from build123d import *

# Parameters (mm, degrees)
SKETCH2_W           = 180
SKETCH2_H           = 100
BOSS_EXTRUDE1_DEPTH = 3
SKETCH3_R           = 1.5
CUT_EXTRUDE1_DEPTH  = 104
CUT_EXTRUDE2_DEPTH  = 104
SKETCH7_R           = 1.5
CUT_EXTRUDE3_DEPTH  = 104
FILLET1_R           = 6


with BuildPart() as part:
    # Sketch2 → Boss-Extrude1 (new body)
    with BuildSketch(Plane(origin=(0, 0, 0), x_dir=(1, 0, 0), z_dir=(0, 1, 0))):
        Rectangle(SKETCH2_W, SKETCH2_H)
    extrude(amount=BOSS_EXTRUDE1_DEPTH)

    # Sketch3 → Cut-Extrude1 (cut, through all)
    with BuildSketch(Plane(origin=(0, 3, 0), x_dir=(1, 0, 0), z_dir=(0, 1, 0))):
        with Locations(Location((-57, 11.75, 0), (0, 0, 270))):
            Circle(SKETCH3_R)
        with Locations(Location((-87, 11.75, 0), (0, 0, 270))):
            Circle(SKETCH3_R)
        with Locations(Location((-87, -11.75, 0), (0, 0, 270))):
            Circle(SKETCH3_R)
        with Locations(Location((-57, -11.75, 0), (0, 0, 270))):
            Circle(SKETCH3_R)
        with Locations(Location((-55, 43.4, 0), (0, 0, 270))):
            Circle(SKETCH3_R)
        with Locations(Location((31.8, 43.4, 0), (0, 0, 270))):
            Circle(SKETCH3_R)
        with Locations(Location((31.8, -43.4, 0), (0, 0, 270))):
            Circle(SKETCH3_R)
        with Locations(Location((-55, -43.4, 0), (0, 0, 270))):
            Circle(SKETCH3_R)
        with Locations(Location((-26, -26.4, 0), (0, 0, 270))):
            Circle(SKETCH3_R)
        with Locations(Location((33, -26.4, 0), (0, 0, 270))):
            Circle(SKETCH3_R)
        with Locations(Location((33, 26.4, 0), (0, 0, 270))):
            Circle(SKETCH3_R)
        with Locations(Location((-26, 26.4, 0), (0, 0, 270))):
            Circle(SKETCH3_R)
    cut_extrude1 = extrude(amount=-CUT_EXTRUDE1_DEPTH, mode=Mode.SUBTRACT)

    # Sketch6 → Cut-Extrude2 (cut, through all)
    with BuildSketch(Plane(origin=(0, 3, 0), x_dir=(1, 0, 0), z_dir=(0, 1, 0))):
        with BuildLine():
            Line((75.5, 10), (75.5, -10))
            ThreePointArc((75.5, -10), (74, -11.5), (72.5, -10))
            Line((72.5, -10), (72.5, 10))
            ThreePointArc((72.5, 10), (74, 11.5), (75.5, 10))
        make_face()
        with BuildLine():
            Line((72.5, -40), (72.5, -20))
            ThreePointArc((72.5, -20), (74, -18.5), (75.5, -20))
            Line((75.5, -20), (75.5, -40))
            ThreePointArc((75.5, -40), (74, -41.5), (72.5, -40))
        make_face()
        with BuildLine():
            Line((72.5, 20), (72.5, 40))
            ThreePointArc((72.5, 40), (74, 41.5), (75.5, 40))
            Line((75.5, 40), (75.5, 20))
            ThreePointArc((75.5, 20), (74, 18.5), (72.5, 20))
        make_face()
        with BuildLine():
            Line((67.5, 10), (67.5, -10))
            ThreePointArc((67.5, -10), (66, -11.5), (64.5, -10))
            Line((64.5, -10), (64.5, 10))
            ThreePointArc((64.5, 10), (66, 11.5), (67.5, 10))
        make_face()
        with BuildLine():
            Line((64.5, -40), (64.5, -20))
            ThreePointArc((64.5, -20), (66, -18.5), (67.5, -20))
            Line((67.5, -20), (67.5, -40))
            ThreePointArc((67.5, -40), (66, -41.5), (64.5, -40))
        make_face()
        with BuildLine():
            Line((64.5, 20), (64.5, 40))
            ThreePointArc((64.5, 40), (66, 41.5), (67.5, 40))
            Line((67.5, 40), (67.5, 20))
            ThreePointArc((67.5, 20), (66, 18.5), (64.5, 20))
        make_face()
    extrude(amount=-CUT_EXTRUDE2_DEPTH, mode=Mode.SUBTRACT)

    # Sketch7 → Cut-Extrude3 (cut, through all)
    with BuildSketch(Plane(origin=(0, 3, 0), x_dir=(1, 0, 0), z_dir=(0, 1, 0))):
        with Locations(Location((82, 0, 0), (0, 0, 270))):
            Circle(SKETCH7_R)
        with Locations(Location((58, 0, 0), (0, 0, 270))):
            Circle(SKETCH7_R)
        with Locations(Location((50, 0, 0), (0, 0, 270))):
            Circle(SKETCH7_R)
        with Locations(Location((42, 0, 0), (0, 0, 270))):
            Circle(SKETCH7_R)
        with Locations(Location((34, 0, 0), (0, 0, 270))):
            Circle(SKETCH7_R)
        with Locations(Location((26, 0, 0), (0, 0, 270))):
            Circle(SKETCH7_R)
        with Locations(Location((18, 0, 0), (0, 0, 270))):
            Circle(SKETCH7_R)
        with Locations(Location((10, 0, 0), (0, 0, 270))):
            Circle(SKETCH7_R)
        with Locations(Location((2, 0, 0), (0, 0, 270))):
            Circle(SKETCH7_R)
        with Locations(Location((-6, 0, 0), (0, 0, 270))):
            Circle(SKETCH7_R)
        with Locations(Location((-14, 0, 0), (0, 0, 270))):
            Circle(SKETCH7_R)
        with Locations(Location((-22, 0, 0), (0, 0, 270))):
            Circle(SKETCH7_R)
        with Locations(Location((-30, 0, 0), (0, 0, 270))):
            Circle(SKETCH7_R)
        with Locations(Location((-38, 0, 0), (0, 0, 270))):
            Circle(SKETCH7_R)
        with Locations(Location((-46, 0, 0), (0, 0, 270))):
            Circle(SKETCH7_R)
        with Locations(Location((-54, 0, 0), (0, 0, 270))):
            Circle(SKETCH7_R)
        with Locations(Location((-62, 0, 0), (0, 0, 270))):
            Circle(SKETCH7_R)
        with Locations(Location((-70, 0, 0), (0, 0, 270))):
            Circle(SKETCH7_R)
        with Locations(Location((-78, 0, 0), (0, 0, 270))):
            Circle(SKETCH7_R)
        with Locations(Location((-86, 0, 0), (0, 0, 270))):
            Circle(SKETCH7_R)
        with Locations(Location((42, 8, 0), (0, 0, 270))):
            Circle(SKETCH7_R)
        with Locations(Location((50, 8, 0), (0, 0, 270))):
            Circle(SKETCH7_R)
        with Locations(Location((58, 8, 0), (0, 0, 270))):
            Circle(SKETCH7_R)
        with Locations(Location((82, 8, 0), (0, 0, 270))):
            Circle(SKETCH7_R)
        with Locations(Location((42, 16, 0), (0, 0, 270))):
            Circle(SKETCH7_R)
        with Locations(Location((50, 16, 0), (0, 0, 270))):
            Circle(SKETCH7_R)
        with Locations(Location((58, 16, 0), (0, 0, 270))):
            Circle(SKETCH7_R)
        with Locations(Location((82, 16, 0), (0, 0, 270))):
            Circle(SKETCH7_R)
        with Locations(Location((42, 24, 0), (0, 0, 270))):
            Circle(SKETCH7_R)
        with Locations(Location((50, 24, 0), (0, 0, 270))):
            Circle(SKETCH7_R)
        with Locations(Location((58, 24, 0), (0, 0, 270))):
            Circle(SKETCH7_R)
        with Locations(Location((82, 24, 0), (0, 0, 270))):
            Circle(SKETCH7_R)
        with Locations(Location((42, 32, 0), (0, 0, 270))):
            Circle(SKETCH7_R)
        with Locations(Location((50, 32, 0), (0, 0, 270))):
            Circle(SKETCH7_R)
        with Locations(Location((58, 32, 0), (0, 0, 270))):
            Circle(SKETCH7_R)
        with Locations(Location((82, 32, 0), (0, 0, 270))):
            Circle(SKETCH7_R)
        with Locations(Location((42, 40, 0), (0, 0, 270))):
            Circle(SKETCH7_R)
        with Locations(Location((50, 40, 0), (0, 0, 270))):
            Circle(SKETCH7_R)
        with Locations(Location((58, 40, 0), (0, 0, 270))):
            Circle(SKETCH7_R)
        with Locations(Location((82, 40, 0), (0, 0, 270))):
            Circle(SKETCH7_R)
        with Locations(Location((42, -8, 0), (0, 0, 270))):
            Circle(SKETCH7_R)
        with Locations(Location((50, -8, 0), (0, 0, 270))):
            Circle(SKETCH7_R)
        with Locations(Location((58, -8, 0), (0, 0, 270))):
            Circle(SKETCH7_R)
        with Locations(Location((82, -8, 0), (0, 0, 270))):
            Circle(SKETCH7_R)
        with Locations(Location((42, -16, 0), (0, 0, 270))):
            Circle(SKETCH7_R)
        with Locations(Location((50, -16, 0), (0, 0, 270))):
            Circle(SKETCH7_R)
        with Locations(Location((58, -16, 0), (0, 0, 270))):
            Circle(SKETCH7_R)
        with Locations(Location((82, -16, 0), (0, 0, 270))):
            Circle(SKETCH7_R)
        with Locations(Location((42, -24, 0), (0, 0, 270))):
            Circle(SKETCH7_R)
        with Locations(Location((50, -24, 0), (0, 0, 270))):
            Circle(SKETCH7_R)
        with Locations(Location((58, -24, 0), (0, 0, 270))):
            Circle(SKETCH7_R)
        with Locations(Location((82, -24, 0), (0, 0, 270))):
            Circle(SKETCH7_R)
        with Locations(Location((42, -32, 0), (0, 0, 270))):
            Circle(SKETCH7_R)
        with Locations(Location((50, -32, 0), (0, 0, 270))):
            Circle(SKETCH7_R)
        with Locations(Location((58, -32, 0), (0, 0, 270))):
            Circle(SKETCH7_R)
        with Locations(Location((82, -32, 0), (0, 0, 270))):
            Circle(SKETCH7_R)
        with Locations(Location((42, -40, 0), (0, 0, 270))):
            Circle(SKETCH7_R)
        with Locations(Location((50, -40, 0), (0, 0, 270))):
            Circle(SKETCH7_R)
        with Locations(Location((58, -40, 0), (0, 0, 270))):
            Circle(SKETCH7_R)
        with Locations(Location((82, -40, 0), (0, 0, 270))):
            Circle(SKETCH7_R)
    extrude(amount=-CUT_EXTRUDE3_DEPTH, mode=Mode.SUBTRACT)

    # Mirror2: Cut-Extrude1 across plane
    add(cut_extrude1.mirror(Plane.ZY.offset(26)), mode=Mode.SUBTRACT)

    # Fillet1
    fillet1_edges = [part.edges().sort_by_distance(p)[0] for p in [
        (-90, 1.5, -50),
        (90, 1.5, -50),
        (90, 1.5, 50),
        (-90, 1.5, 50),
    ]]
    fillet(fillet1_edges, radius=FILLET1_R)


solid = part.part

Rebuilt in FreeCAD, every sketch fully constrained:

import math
import FreeCAD as App
import Part
import Sketcher
from FreeCAD import Vector
Q = App.Units.Quantity


def edges_at(feature, points):
    """Names of the edges that pass closest to the given points."""
    edges = feature.Shape.Edges
    near = lambda p: min(range(len(edges)), key=lambda i: edges[i].distToShape(Part.Vertex(*p))[0])
    return sorted({f"Edge{near(p) + 1}" for p in points})


def add_polygon(sketch, points):
    """Adds a closed chain of lines whose ends are joined by coincident constraints."""
    first, n = sketch.GeometryCount, len(points)
    for a, b in zip(points, points[1:] + points[:1]):
        sketch.addGeometry(Part.LineSegment(App.Vector(*a, 0), App.Vector(*b, 0)), False)
    for i in range(n):
        sketch.addConstraint(Sketcher.Constraint("Coincident", first + i, 2, first + (i + 1) % n, 1))

doc = App.newDocument("Part")
body = doc.addObject("PartDesign::Body", "Body")

# Sketch on XZ plane
sketch1 = doc.addObject("Sketcher::SketchObject", "Sketch")
body.addObject(sketch1)
sketch1.AttachmentSupport = (doc.XZ_Plane, [""])
sketch1.MapMode = "FlatFace"
add_polygon(sketch1, [(-90, -50), (-90, 50), (90, 50), (90, -50)])  # lines 0-3
sketch1.addConstraint([
    Sketcher.Constraint("Vertical", 0),
    Sketcher.Constraint("Horizontal", 1),
    Sketcher.Constraint("Vertical", 2),
    Sketcher.Constraint("Horizontal", 3),
    Sketcher.Constraint("Symmetric", 0, 2, 2, 2, -1, 1),
    Sketcher.Constraint("DistanceX", 1, 1, 1, 2, Q("180 mm")),
    Sketcher.Constraint("DistanceY", 0, 1, 0, 2, Q("100 mm")),
])
pad1 = doc.addObject("PartDesign::Pad", "Pad")
body.addObject(pad1)
pad1.Profile = sketch1
pad1.Length = 3
pad1.Reversed = True

# Sketch on XZ plane
sketch2 = doc.addObject("Sketcher::SketchObject", "Sketch001")
body.addObject(sketch2)
sketch2.AttachmentSupport = (doc.XZ_Plane, [""])
sketch2.MapMode = "FlatFace"
sketch2.AttachmentOffset = App.Placement(Vector(0, 0, -3), App.Rotation())
sketch2.addGeometry([
    Part.Circle(Vector(-57, -11.75, 0), Vector(0, 0, 1), 1.5),  # 0
    Part.Circle(Vector(-87, -11.75, 0), Vector(0, 0, 1), 1.5),  # 1
    Part.Circle(Vector(-87, 11.75, 0), Vector(0, 0, 1), 1.5),  # 2
    Part.Circle(Vector(-57, 11.75, 0), Vector(0, 0, 1), 1.5),  # 3
    Part.Circle(Vector(-55, -43.4, 0), Vector(0, 0, 1), 1.5),  # 4
    Part.Circle(Vector(31.8, -43.4, 0), Vector(0, 0, 1), 1.5),  # 5
    Part.Circle(Vector(31.8, 43.4, 0), Vector(0, 0, 1), 1.5),  # 6
    Part.Circle(Vector(-55, 43.4, 0), Vector(0, 0, 1), 1.5),  # 7
    Part.Circle(Vector(-26, 26.4, 0), Vector(0, 0, 1), 1.5),  # 8
    Part.Circle(Vector(33, 26.4, 0), Vector(0, 0, 1), 1.5),  # 9
    Part.Circle(Vector(33, -26.4, 0), Vector(0, 0, 1), 1.5),  # 10
    Part.Circle(Vector(-26, -26.4, 0), Vector(0, 0, 1), 1.5),  # 11
], False)
sketch2.addConstraint([
    Sketcher.Constraint("Equal", 0, 1),
    Sketcher.Constraint("Equal", 1, 2),
    Sketcher.Constraint("Equal", 2, 3),
    Sketcher.Constraint("Equal", 3, 4),
    Sketcher.Constraint("Equal", 4, 5),
    Sketcher.Constraint("Equal", 5, 6),
    Sketcher.Constraint("Equal", 6, 7),
    Sketcher.Constraint("Equal", 7, 8),
    Sketcher.Constraint("Equal", 8, 9),
    Sketcher.Constraint("Equal", 9, 10),
    Sketcher.Constraint("Equal", 10, 11),
    Sketcher.Constraint("Symmetric", 1, 3, 2, 3, -1),
    Sketcher.Constraint("Symmetric", 0, 3, 3, 3, -1),
    Sketcher.Constraint("Symmetric", 5, 3, 6, 3, -1),
    Sketcher.Constraint("Symmetric", 4, 3, 7, 3, -1),
    Sketcher.Constraint("Symmetric", 9, 3, 10, 3, -1),
    Sketcher.Constraint("Symmetric", 8, 3, 11, 3, -1),
    Sketcher.Constraint("Horizontal", 0, 3, 1, 3),
    Sketcher.Constraint("Horizontal", 4, 3, 5, 3),
    Sketcher.Constraint("Horizontal", 8, 3, 9, 3),
    Sketcher.Constraint("Diameter", 0, Q("3 mm")),
    Sketcher.Constraint("DistanceX", 0, 3, -1, 1, Q("57 mm")),
    Sketcher.Constraint("DistanceX", 1, 3, -1, 1, Q("87 mm")),
    Sketcher.Constraint("DistanceX", 4, 3, -1, 1, Q("55 mm")),
    Sketcher.Constraint("DistanceX", 8, 3, -1, 1, Q("26 mm")),
    Sketcher.Constraint("DistanceX", -1, 1, 9, 3, Q("33 mm")),
    Sketcher.Constraint("DistanceY", 8, 3, 7, 3, Q("17 mm")),
    Sketcher.Constraint("DistanceY", 4, 3, -1, 1, Q("43.4 mm")),
    Sketcher.Constraint("DistanceX", -1, 1, 5, 3, Q("31.8 mm")),
    Sketcher.Constraint("DistanceY", 1, 3, 2, 3, Q("23.5 mm")),
])
pocket1 = doc.addObject("PartDesign::Pocket", "Pocket")
body.addObject(pocket1)
pocket1.Profile = sketch2
pocket1.Type = "ThroughAll"
pocket1.Reversed = True

# Sketch on XZ plane
sketch3 = doc.addObject("Sketcher::SketchObject", "Sketch002")
body.addObject(sketch3)
sketch3.AttachmentSupport = (doc.XZ_Plane, [""])
sketch3.MapMode = "FlatFace"
sketch3.AttachmentOffset = App.Placement(Vector(0, 0, -3), App.Rotation())
sketch3.addGeometry([
    Part.LineSegment(Vector(75.5, 10, 0), Vector(75.5, -10, 0)),  # 0
    Part.ArcOfCircle(Part.Circle(Vector(74, -10, 0), Vector(0, 0, 1), 1.5), math.radians(180), math.radians(360)),  # 1
    Part.LineSegment(Vector(72.5, -10, 0), Vector(72.5, 10, 0)),  # 2
    Part.ArcOfCircle(Part.Circle(Vector(74, 10, 0), Vector(0, 0, 1), 1.5), math.radians(0), math.radians(180)),  # 3
    Part.LineSegment(Vector(72.5, 20, 0), Vector(72.5, 40, 0)),  # 4
    Part.ArcOfCircle(Part.Circle(Vector(74, 40, 0), Vector(0, 0, 1), 1.5), math.radians(0), math.radians(180)),  # 5
    Part.LineSegment(Vector(75.5, 40, 0), Vector(75.5, 20, 0)),  # 6
    Part.ArcOfCircle(Part.Circle(Vector(74, 20, 0), Vector(0, 0, 1), 1.5), math.radians(180), math.radians(360)),  # 7
    Part.LineSegment(Vector(72.5, -40, 0), Vector(72.5, -20, 0)),  # 8
    Part.ArcOfCircle(Part.Circle(Vector(74, -20, 0), Vector(0, 0, 1), 1.5), math.radians(0), math.radians(180)),  # 9
    Part.LineSegment(Vector(75.5, -20, 0), Vector(75.5, -40, 0)),  # 10
    Part.ArcOfCircle(Part.Circle(Vector(74, -40, 0), Vector(0, 0, 1), 1.5), math.radians(180), math.radians(360)),  # 11
    Part.LineSegment(Vector(67.5, 10, 0), Vector(67.5, -10, 0)),  # 12
    Part.ArcOfCircle(Part.Circle(Vector(66, -10, 0), Vector(0, 0, 1), 1.5), math.radians(180), math.radians(360)),  # 13
    Part.LineSegment(Vector(64.5, -10, 0), Vector(64.5, 10, 0)),  # 14
    Part.ArcOfCircle(Part.Circle(Vector(66, 10, 0), Vector(0, 0, 1), 1.5), math.radians(0), math.radians(180)),  # 15
    Part.LineSegment(Vector(64.5, 20, 0), Vector(64.5, 40, 0)),  # 16
    Part.ArcOfCircle(Part.Circle(Vector(66, 40, 0), Vector(0, 0, 1), 1.5), math.radians(0), math.radians(180)),  # 17
    Part.LineSegment(Vector(67.5, 40, 0), Vector(67.5, 20, 0)),  # 18
    Part.ArcOfCircle(Part.Circle(Vector(66, 20, 0), Vector(0, 0, 1), 1.5), math.radians(180), math.radians(360)),  # 19
    Part.LineSegment(Vector(64.5, -40, 0), Vector(64.5, -20, 0)),  # 20
    Part.ArcOfCircle(Part.Circle(Vector(66, -20, 0), Vector(0, 0, 1), 1.5), math.radians(0), math.radians(180)),  # 21
    Part.LineSegment(Vector(67.5, -20, 0), Vector(67.5, -40, 0)),  # 22
    Part.ArcOfCircle(Part.Circle(Vector(66, -40, 0), Vector(0, 0, 1), 1.5), math.radians(180), math.radians(360)),  # 23
], False)
sketch3.addConstraint([
    Sketcher.Constraint("Tangent", 0, 2, 1, 2),
    Sketcher.Constraint("Tangent", 1, 1, 2, 1),
    Sketcher.Constraint("Tangent", 2, 2, 3, 2),
    Sketcher.Constraint("Tangent", 3, 1, 0, 1),
    Sketcher.Constraint("Tangent", 4, 2, 5, 2),
    Sketcher.Constraint("Tangent", 5, 1, 6, 1),
    Sketcher.Constraint("Tangent", 6, 2, 7, 2),
    Sketcher.Constraint("Tangent", 7, 1, 4, 1),
    Sketcher.Constraint("Tangent", 8, 2, 9, 2),
    Sketcher.Constraint("Tangent", 9, 1, 10, 1),
    Sketcher.Constraint("Tangent", 10, 2, 11, 2),
    Sketcher.Constraint("Tangent", 11, 1, 8, 1),
    Sketcher.Constraint("Tangent", 12, 2, 13, 2),
    Sketcher.Constraint("Tangent", 13, 1, 14, 1),
    Sketcher.Constraint("Tangent", 14, 2, 15, 2),
    Sketcher.Constraint("Tangent", 15, 1, 12, 1),
    Sketcher.Constraint("Tangent", 16, 2, 17, 2),
    Sketcher.Constraint("Tangent", 17, 1, 18, 1),
    Sketcher.Constraint("Tangent", 18, 2, 19, 2),
    Sketcher.Constraint("Tangent", 19, 1, 16, 1),
    Sketcher.Constraint("Tangent", 20, 2, 21, 2),
    Sketcher.Constraint("Tangent", 21, 1, 22, 1),
    Sketcher.Constraint("Tangent", 22, 2, 23, 2),
    Sketcher.Constraint("Tangent", 23, 1, 20, 1),
    Sketcher.Constraint("Vertical", 0),
    Sketcher.Constraint("Vertical", 2),
    Sketcher.Constraint("Vertical", 4),
    Sketcher.Constraint("Vertical", 6),
    Sketcher.Constraint("Vertical", 8),
    Sketcher.Constraint("Vertical", 10),
    Sketcher.Constraint("Vertical", 12),
    Sketcher.Constraint("Vertical", 14),
    Sketcher.Constraint("Vertical", 16),
    Sketcher.Constraint("Vertical", 18),
    Sketcher.Constraint("Vertical", 20),
    Sketcher.Constraint("Vertical", 22),
    Sketcher.Constraint("Equal", 3, 5),
    Sketcher.Constraint("Equal", 7, 9),
    Sketcher.Constraint("Equal", 11, 13),
    Sketcher.Constraint("Equal", 15, 17),
    Sketcher.Constraint("Equal", 19, 21),
    Sketcher.Constraint("Symmetric", 7, 3, 9, 3, -1),
    Sketcher.Constraint("Symmetric", 19, 3, 21, 3, -1),
    Sketcher.Constraint("Horizontal", 1, 3, 13, 3),
    Sketcher.Constraint("Horizontal", 3, 3, 15, 3),
    Sketcher.Constraint("Horizontal", 5, 3, 17, 3),
    Sketcher.Constraint("Horizontal", 7, 3, 19, 3),
    Sketcher.Constraint("Horizontal", 11, 3, 23, 3),
    Sketcher.Constraint("Vertical", 3, 3, 5, 3),
    Sketcher.Constraint("Vertical", 15, 3, 17, 3),
    Sketcher.Constraint("Equal", 2, 4),
    Sketcher.Constraint("Equal", 6, 8),
    Sketcher.Constraint("Radius", 1, Q("1.5 mm")),
    Sketcher.Constraint("DistanceY", 0, 2, 0, 1, Q("20 mm")),
    Sketcher.Constraint("DistanceX", -1, 1, 1, 3, Q("74 mm")),
    Sketcher.Constraint("DistanceY", 1, 3, -1, 1, Q("10 mm")),
    Sketcher.Constraint("DistanceY", -1, 1, 5, 3, Q("40 mm")),
    Sketcher.Constraint("DistanceX", -1, 1, 13, 3, Q("66 mm")),
])
pocket2 = doc.addObject("PartDesign::Pocket", "Pocket001")
body.addObject(pocket2)
pocket2.Profile = sketch3
pocket2.Type = "ThroughAll"
pocket2.Reversed = True

# Sketch on XZ plane
sketch4 = doc.addObject("Sketcher::SketchObject", "Sketch003")
body.addObject(sketch4)
sketch4.AttachmentSupport = (doc.XZ_Plane, [""])
sketch4.MapMode = "FlatFace"
sketch4.AttachmentOffset = App.Placement(Vector(0, 0, -3), App.Rotation())
sketch4.addGeometry([
    Part.Circle(Vector(82, 0, 0), Vector(0, 0, 1), 1.5),  # 0
    Part.Circle(Vector(58, 0, 0), Vector(0, 0, 1), 1.5),  # 1
    Part.Circle(Vector(50, 0, 0), Vector(0, 0, 1), 1.5),  # 2
    Part.Circle(Vector(42, 0, 0), Vector(0, 0, 1), 1.5),  # 3
    Part.Circle(Vector(34, 0, 0), Vector(0, 0, 1), 1.5),  # 4
    Part.Circle(Vector(26, 0, 0), Vector(0, 0, 1), 1.5),  # 5
    Part.Circle(Vector(18, 0, 0), Vector(0, 0, 1), 1.5),  # 6
    Part.Circle(Vector(10, 0, 0), Vector(0, 0, 1), 1.5),  # 7
    Part.Circle(Vector(2, 0, 0), Vector(0, 0, 1), 1.5),  # 8
    Part.Circle(Vector(-6, 0, 0), Vector(0, 0, 1), 1.5),  # 9
    Part.Circle(Vector(-14, 0, 0), Vector(0, 0, 1), 1.5),  # 10
    Part.Circle(Vector(-22, 0, 0), Vector(0, 0, 1), 1.5),  # 11
    Part.Circle(Vector(-30, 0, 0), Vector(0, 0, 1), 1.5),  # 12
    Part.Circle(Vector(-38, 0, 0), Vector(0, 0, 1), 1.5),  # 13
    Part.Circle(Vector(-46, 0, 0), Vector(0, 0, 1), 1.5),  # 14
    Part.Circle(Vector(-54, 0, 0), Vector(0, 0, 1), 1.5),  # 15
    Part.Circle(Vector(-62, 0, 0), Vector(0, 0, 1), 1.5),  # 16
    Part.Circle(Vector(-70, 0, 0), Vector(0, 0, 1), 1.5),  # 17
    Part.Circle(Vector(-78, 0, 0), Vector(0, 0, 1), 1.5),  # 18
    Part.Circle(Vector(-86, 0, 0), Vector(0, 0, 1), 1.5),  # 19
    Part.Circle(Vector(42, -8, 0), Vector(0, 0, 1), 1.5),  # 20
    Part.Circle(Vector(50, -8, 0), Vector(0, 0, 1), 1.5),  # 21
    Part.Circle(Vector(58, -8, 0), Vector(0, 0, 1), 1.5),  # 22
    Part.Circle(Vector(82, -8, 0), Vector(0, 0, 1), 1.5),  # 23
    Part.Circle(Vector(42, -16, 0), Vector(0, 0, 1), 1.5),  # 24
    Part.Circle(Vector(50, -16, 0), Vector(0, 0, 1), 1.5),  # 25
    Part.Circle(Vector(58, -16, 0), Vector(0, 0, 1), 1.5),  # 26
    Part.Circle(Vector(82, -16, 0), Vector(0, 0, 1), 1.5),  # 27
    Part.Circle(Vector(42, -24, 0), Vector(0, 0, 1), 1.5),  # 28
    Part.Circle(Vector(50, -24, 0), Vector(0, 0, 1), 1.5),  # 29
    Part.Circle(Vector(58, -24, 0), Vector(0, 0, 1), 1.5),  # 30
    Part.Circle(Vector(82, -24, 0), Vector(0, 0, 1), 1.5),  # 31
    Part.Circle(Vector(42, -32, 0), Vector(0, 0, 1), 1.5),  # 32
    Part.Circle(Vector(50, -32, 0), Vector(0, 0, 1), 1.5),  # 33
    Part.Circle(Vector(58, -32, 0), Vector(0, 0, 1), 1.5),  # 34
    Part.Circle(Vector(82, -32, 0), Vector(0, 0, 1), 1.5),  # 35
    Part.Circle(Vector(42, -40, 0), Vector(0, 0, 1), 1.5),  # 36
    Part.Circle(Vector(50, -40, 0), Vector(0, 0, 1), 1.5),  # 37
    Part.Circle(Vector(58, -40, 0), Vector(0, 0, 1), 1.5),  # 38
    Part.Circle(Vector(82, -40, 0), Vector(0, 0, 1), 1.5),  # 39
    Part.Circle(Vector(42, 8, 0), Vector(0, 0, 1), 1.5),  # 40
    Part.Circle(Vector(50, 8, 0), Vector(0, 0, 1), 1.5),  # 41
    Part.Circle(Vector(58, 8, 0), Vector(0, 0, 1), 1.5),  # 42
    Part.Circle(Vector(82, 8, 0), Vector(0, 0, 1), 1.5),  # 43
    Part.Circle(Vector(42, 16, 0), Vector(0, 0, 1), 1.5),  # 44
    Part.Circle(Vector(50, 16, 0), Vector(0, 0, 1), 1.5),  # 45
    Part.Circle(Vector(58, 16, 0), Vector(0, 0, 1), 1.5),  # 46
    Part.Circle(Vector(82, 16, 0), Vector(0, 0, 1), 1.5),  # 47
    Part.Circle(Vector(42, 24, 0), Vector(0, 0, 1), 1.5),  # 48
    Part.Circle(Vector(50, 24, 0), Vector(0, 0, 1), 1.5),  # 49
    Part.Circle(Vector(58, 24, 0), Vector(0, 0, 1), 1.5),  # 50
    Part.Circle(Vector(82, 24, 0), Vector(0, 0, 1), 1.5),  # 51
    Part.Circle(Vector(42, 32, 0), Vector(0, 0, 1), 1.5),  # 52
    Part.Circle(Vector(50, 32, 0), Vector(0, 0, 1), 1.5),  # 53
    Part.Circle(Vector(58, 32, 0), Vector(0, 0, 1), 1.5),  # 54
    Part.Circle(Vector(82, 32, 0), Vector(0, 0, 1), 1.5),  # 55
    Part.Circle(Vector(42, 40, 0), Vector(0, 0, 1), 1.5),  # 56
    Part.Circle(Vector(50, 40, 0), Vector(0, 0, 1), 1.5),  # 57
    Part.Circle(Vector(58, 40, 0), Vector(0, 0, 1), 1.5),  # 58
    Part.Circle(Vector(82, 40, 0), Vector(0, 0, 1), 1.5),  # 59
], False)
sketch4.addConstraint([
    Sketcher.Constraint("Equal", 0, 1),
    Sketcher.Constraint("Equal", 1, 2),
    Sketcher.Constraint("Equal", 2, 3),
    Sketcher.Constraint("Equal", 3, 4),
    Sketcher.Constraint("Equal", 4, 5),
    Sketcher.Constraint("Equal", 5, 6),
    Sketcher.Constraint("Equal", 6, 7),
    Sketcher.Constraint("Equal", 7, 8),
    Sketcher.Constraint("Equal", 8, 9),
    Sketcher.Constraint("Equal", 9, 10),
    Sketcher.Constraint("Equal", 10, 11),
    Sketcher.Constraint("Equal", 11, 12),
    Sketcher.Constraint("Equal", 12, 13),
    Sketcher.Constraint("Equal", 13, 14),
    Sketcher.Constraint("Equal", 14, 15),
    Sketcher.Constraint("Equal", 15, 16),
    Sketcher.Constraint("Equal", 16, 17),
    Sketcher.Constraint("Equal", 17, 18),
    Sketcher.Constraint("Equal", 18, 19),
    Sketcher.Constraint("Equal", 19, 20),
    Sketcher.Constraint("Equal", 20, 21),
    Sketcher.Constraint("Equal", 21, 22),
    Sketcher.Constraint("Equal", 22, 23),
    Sketcher.Constraint("Equal", 23, 24),
    Sketcher.Constraint("Equal", 24, 25),
    Sketcher.Constraint("Equal", 25, 26),
    Sketcher.Constraint("Equal", 26, 27),
    Sketcher.Constraint("Equal", 27, 28),
    Sketcher.Constraint("Equal", 28, 29),
    Sketcher.Constraint("Equal", 29, 30),
    Sketcher.Constraint("Equal", 30, 31),
    Sketcher.Constraint("Equal", 31, 32),
    Sketcher.Constraint("Equal", 32, 33),
    Sketcher.Constraint("Equal", 33, 34),
    Sketcher.Constraint("Equal", 34, 35),
    Sketcher.Constraint("Equal", 35, 36),
    Sketcher.Constraint("Equal", 36, 37),
    Sketcher.Constraint("Equal", 37, 38),
    Sketcher.Constraint("Equal", 38, 39),
    Sketcher.Constraint("Equal", 39, 40),
    Sketcher.Constraint("Equal", 40, 41),
    Sketcher.Constraint("Equal", 41, 42),
    Sketcher.Constraint("Equal", 42, 43),
    Sketcher.Constraint("Equal", 43, 44),
    Sketcher.Constraint("Equal", 44, 45),
    Sketcher.Constraint("Equal", 45, 46),
    Sketcher.Constraint("Equal", 46, 47),
    Sketcher.Constraint("Equal", 47, 48),
    Sketcher.Constraint("Equal", 48, 49),
    Sketcher.Constraint("Equal", 49, 50),
    Sketcher.Constraint("Equal", 50, 51),
    Sketcher.Constraint("Equal", 51, 52),
    Sketcher.Constraint("Equal", 52, 53),
    Sketcher.Constraint("Equal", 53, 54),
    Sketcher.Constraint("Equal", 54, 55),
    Sketcher.Constraint("Equal", 55, 56),
    Sketcher.Constraint("Equal", 56, 57),
    Sketcher.Constraint("Equal", 57, 58),
    Sketcher.Constraint("Equal", 58, 59),
    Sketcher.Constraint("Symmetric", 20, 3, 40, 3, -1),
    Sketcher.Constraint("Symmetric", 21, 3, 41, 3, -1),
    Sketcher.Constraint("Symmetric", 22, 3, 42, 3, -1),
    Sketcher.Constraint("Symmetric", 23, 3, 43, 3, -1),
    Sketcher.Constraint("Symmetric", 24, 3, 44, 3, -1),
    Sketcher.Constraint("Symmetric", 25, 3, 45, 3, -1),
    Sketcher.Constraint("Symmetric", 26, 3, 46, 3, -1),
    Sketcher.Constraint("Symmetric", 27, 3, 47, 3, -1),
    Sketcher.Constraint("Symmetric", 28, 3, 48, 3, -1),
    Sketcher.Constraint("Symmetric", 29, 3, 49, 3, -1),
    Sketcher.Constraint("Symmetric", 30, 3, 50, 3, -1),
    Sketcher.Constraint("Symmetric", 31, 3, 51, 3, -1),
    Sketcher.Constraint("Symmetric", 32, 3, 52, 3, -1),
    Sketcher.Constraint("Symmetric", 33, 3, 53, 3, -1),
    Sketcher.Constraint("Symmetric", 34, 3, 54, 3, -1),
    Sketcher.Constraint("Symmetric", 35, 3, 55, 3, -1),
    Sketcher.Constraint("Symmetric", 36, 3, 56, 3, -1),
    Sketcher.Constraint("Symmetric", 37, 3, 57, 3, -1),
    Sketcher.Constraint("Symmetric", 38, 3, 58, 3, -1),
    Sketcher.Constraint("Symmetric", 39, 3, 59, 3, -1),
    Sketcher.Constraint("PointOnObject", 0, 3, -1),
    Sketcher.Constraint("PointOnObject", 1, 3, -1),
    Sketcher.Constraint("PointOnObject", 2, 3, -1),
    Sketcher.Constraint("PointOnObject", 3, 3, -1),
    Sketcher.Constraint("PointOnObject", 4, 3, -1),
    Sketcher.Constraint("PointOnObject", 5, 3, -1),
    Sketcher.Constraint("PointOnObject", 6, 3, -1),
    Sketcher.Constraint("PointOnObject", 7, 3, -1),
    Sketcher.Constraint("PointOnObject", 8, 3, -1),
    Sketcher.Constraint("PointOnObject", 9, 3, -1),
    Sketcher.Constraint("PointOnObject", 10, 3, -1),
    Sketcher.Constraint("PointOnObject", 11, 3, -1),
    Sketcher.Constraint("PointOnObject", 12, 3, -1),
    Sketcher.Constraint("PointOnObject", 13, 3, -1),
    Sketcher.Constraint("PointOnObject", 14, 3, -1),
    Sketcher.Constraint("PointOnObject", 15, 3, -1),
    Sketcher.Constraint("PointOnObject", 16, 3, -1),
    Sketcher.Constraint("PointOnObject", 17, 3, -1),
    Sketcher.Constraint("PointOnObject", 18, 3, -1),
    Sketcher.Constraint("PointOnObject", 19, 3, -1),
    Sketcher.Constraint("Horizontal", 20, 3, 21, 3),
    Sketcher.Constraint("Horizontal", 21, 3, 22, 3),
    Sketcher.Constraint("Horizontal", 22, 3, 23, 3),
    Sketcher.Constraint("Horizontal", 24, 3, 25, 3),
    Sketcher.Constraint("Horizontal", 25, 3, 26, 3),
    Sketcher.Constraint("Horizontal", 26, 3, 27, 3),
    Sketcher.Constraint("Horizontal", 28, 3, 29, 3),
    Sketcher.Constraint("Horizontal", 29, 3, 30, 3),
    Sketcher.Constraint("Horizontal", 30, 3, 31, 3),
    Sketcher.Constraint("Horizontal", 32, 3, 33, 3),
    Sketcher.Constraint("Horizontal", 33, 3, 34, 3),
    Sketcher.Constraint("Horizontal", 34, 3, 35, 3),
    Sketcher.Constraint("Horizontal", 36, 3, 37, 3),
    Sketcher.Constraint("Horizontal", 37, 3, 38, 3),
    Sketcher.Constraint("Horizontal", 38, 3, 39, 3),
    Sketcher.Constraint("Vertical", 3, 3, 20, 3),
    Sketcher.Constraint("Vertical", 2, 3, 21, 3),
    Sketcher.Constraint("Vertical", 1, 3, 22, 3),
    Sketcher.Constraint("Vertical", 0, 3, 23, 3),
    Sketcher.Constraint("Vertical", 20, 3, 24, 3),
    Sketcher.Constraint("Vertical", 21, 3, 25, 3),
    Sketcher.Constraint("Vertical", 22, 3, 26, 3),
    Sketcher.Constraint("Vertical", 23, 3, 27, 3),
    Sketcher.Constraint("Vertical", 24, 3, 28, 3),
    Sketcher.Constraint("Vertical", 25, 3, 29, 3),
    Sketcher.Constraint("Vertical", 26, 3, 30, 3),
    Sketcher.Constraint("Vertical", 27, 3, 31, 3),
    Sketcher.Constraint("Vertical", 28, 3, 32, 3),
    Sketcher.Constraint("Vertical", 29, 3, 33, 3),
    Sketcher.Constraint("Vertical", 30, 3, 34, 3),
    Sketcher.Constraint("Vertical", 31, 3, 35, 3),
    Sketcher.Constraint("Vertical", 32, 3, 36, 3),
    Sketcher.Constraint("Vertical", 33, 3, 37, 3),
    Sketcher.Constraint("Vertical", 34, 3, 38, 3),
    Sketcher.Constraint("Vertical", 35, 3, 39, 3),
    Sketcher.Constraint("Diameter", 0, Q("3 mm")),
    Sketcher.Constraint("DistanceX", -1, 1, 0, 3, Q("82 mm")),
    Sketcher.Constraint("DistanceX", -1, 1, 1, 3, Q("58 mm")),
    Sketcher.Constraint("DistanceX", -1, 1, 2, 3, Q("50 mm")),
    Sketcher.Constraint("DistanceX", -1, 1, 3, 3, Q("42 mm")),
    Sketcher.Constraint("DistanceX", -1, 1, 4, 3, Q("34 mm")),
    Sketcher.Constraint("DistanceX", -1, 1, 5, 3, Q("26 mm")),
    Sketcher.Constraint("DistanceX", -1, 1, 6, 3, Q("18 mm")),
    Sketcher.Constraint("DistanceX", -1, 1, 7, 3, Q("10 mm")),
    Sketcher.Constraint("DistanceX", -1, 1, 8, 3, Q("2 mm")),
    Sketcher.Constraint("DistanceX", 9, 3, -1, 1, Q("6 mm")),
    Sketcher.Constraint("DistanceX", 10, 3, -1, 1, Q("14 mm")),
    Sketcher.Constraint("DistanceX", 11, 3, -1, 1, Q("22 mm")),
    Sketcher.Constraint("DistanceX", 12, 3, -1, 1, Q("30 mm")),
    Sketcher.Constraint("DistanceX", 13, 3, -1, 1, Q("38 mm")),
    Sketcher.Constraint("DistanceX", 14, 3, -1, 1, Q("46 mm")),
    Sketcher.Constraint("DistanceX", 15, 3, -1, 1, Q("54 mm")),
    Sketcher.Constraint("DistanceX", 16, 3, -1, 1, Q("62 mm")),
    Sketcher.Constraint("DistanceX", 17, 3, -1, 1, Q("70 mm")),
    Sketcher.Constraint("DistanceX", 18, 3, -1, 1, Q("78 mm")),
    Sketcher.Constraint("DistanceX", 19, 3, -1, 1, Q("86 mm")),
    Sketcher.Constraint("DistanceY", 20, 3, -1, 1, Q("8 mm")),
    Sketcher.Constraint("DistanceY", 24, 3, -1, 1, Q("16 mm")),
    Sketcher.Constraint("DistanceY", 28, 3, -1, 1, Q("24 mm")),
    Sketcher.Constraint("DistanceY", 32, 3, -1, 1, Q("32 mm")),
    Sketcher.Constraint("DistanceY", 36, 3, -1, 1, Q("40 mm")),
])
pocket3 = doc.addObject("PartDesign::Pocket", "Pocket002")
body.addObject(pocket3)
pocket3.Profile = sketch4
pocket3.Type = "ThroughAll"
pocket3.Reversed = True
doc.recompute()

datumplane = doc.addObject("PartDesign::Plane", "DatumPlane")
body.addObject(datumplane)
datumplane.AttachmentSupport = (doc.YZ_Plane, [""])
datumplane.MapMode = "FlatFace"
datumplane.AttachmentOffset = App.Placement(Vector(0, 0, -26), App.Rotation())
mirrored = doc.addObject("PartDesign::Mirrored", "Mirrored")
body.addObject(mirrored)
mirrored.Originals = [pocket1]
mirrored.MirrorPlane = (datumplane, [""])
body.Tip = mirrored
doc.recompute()

fillet = doc.addObject("PartDesign::Fillet", "Fillet")
body.addObject(fillet)
fillet.Base = (mirrored, edges_at(mirrored, [
    (-90, 1.5, -50),
    (90, 1.5, -50),
    (90, 1.5, 50),
    (-90, 1.5, 50),
]))
fillet.Radius = 6

doc.recompute()
